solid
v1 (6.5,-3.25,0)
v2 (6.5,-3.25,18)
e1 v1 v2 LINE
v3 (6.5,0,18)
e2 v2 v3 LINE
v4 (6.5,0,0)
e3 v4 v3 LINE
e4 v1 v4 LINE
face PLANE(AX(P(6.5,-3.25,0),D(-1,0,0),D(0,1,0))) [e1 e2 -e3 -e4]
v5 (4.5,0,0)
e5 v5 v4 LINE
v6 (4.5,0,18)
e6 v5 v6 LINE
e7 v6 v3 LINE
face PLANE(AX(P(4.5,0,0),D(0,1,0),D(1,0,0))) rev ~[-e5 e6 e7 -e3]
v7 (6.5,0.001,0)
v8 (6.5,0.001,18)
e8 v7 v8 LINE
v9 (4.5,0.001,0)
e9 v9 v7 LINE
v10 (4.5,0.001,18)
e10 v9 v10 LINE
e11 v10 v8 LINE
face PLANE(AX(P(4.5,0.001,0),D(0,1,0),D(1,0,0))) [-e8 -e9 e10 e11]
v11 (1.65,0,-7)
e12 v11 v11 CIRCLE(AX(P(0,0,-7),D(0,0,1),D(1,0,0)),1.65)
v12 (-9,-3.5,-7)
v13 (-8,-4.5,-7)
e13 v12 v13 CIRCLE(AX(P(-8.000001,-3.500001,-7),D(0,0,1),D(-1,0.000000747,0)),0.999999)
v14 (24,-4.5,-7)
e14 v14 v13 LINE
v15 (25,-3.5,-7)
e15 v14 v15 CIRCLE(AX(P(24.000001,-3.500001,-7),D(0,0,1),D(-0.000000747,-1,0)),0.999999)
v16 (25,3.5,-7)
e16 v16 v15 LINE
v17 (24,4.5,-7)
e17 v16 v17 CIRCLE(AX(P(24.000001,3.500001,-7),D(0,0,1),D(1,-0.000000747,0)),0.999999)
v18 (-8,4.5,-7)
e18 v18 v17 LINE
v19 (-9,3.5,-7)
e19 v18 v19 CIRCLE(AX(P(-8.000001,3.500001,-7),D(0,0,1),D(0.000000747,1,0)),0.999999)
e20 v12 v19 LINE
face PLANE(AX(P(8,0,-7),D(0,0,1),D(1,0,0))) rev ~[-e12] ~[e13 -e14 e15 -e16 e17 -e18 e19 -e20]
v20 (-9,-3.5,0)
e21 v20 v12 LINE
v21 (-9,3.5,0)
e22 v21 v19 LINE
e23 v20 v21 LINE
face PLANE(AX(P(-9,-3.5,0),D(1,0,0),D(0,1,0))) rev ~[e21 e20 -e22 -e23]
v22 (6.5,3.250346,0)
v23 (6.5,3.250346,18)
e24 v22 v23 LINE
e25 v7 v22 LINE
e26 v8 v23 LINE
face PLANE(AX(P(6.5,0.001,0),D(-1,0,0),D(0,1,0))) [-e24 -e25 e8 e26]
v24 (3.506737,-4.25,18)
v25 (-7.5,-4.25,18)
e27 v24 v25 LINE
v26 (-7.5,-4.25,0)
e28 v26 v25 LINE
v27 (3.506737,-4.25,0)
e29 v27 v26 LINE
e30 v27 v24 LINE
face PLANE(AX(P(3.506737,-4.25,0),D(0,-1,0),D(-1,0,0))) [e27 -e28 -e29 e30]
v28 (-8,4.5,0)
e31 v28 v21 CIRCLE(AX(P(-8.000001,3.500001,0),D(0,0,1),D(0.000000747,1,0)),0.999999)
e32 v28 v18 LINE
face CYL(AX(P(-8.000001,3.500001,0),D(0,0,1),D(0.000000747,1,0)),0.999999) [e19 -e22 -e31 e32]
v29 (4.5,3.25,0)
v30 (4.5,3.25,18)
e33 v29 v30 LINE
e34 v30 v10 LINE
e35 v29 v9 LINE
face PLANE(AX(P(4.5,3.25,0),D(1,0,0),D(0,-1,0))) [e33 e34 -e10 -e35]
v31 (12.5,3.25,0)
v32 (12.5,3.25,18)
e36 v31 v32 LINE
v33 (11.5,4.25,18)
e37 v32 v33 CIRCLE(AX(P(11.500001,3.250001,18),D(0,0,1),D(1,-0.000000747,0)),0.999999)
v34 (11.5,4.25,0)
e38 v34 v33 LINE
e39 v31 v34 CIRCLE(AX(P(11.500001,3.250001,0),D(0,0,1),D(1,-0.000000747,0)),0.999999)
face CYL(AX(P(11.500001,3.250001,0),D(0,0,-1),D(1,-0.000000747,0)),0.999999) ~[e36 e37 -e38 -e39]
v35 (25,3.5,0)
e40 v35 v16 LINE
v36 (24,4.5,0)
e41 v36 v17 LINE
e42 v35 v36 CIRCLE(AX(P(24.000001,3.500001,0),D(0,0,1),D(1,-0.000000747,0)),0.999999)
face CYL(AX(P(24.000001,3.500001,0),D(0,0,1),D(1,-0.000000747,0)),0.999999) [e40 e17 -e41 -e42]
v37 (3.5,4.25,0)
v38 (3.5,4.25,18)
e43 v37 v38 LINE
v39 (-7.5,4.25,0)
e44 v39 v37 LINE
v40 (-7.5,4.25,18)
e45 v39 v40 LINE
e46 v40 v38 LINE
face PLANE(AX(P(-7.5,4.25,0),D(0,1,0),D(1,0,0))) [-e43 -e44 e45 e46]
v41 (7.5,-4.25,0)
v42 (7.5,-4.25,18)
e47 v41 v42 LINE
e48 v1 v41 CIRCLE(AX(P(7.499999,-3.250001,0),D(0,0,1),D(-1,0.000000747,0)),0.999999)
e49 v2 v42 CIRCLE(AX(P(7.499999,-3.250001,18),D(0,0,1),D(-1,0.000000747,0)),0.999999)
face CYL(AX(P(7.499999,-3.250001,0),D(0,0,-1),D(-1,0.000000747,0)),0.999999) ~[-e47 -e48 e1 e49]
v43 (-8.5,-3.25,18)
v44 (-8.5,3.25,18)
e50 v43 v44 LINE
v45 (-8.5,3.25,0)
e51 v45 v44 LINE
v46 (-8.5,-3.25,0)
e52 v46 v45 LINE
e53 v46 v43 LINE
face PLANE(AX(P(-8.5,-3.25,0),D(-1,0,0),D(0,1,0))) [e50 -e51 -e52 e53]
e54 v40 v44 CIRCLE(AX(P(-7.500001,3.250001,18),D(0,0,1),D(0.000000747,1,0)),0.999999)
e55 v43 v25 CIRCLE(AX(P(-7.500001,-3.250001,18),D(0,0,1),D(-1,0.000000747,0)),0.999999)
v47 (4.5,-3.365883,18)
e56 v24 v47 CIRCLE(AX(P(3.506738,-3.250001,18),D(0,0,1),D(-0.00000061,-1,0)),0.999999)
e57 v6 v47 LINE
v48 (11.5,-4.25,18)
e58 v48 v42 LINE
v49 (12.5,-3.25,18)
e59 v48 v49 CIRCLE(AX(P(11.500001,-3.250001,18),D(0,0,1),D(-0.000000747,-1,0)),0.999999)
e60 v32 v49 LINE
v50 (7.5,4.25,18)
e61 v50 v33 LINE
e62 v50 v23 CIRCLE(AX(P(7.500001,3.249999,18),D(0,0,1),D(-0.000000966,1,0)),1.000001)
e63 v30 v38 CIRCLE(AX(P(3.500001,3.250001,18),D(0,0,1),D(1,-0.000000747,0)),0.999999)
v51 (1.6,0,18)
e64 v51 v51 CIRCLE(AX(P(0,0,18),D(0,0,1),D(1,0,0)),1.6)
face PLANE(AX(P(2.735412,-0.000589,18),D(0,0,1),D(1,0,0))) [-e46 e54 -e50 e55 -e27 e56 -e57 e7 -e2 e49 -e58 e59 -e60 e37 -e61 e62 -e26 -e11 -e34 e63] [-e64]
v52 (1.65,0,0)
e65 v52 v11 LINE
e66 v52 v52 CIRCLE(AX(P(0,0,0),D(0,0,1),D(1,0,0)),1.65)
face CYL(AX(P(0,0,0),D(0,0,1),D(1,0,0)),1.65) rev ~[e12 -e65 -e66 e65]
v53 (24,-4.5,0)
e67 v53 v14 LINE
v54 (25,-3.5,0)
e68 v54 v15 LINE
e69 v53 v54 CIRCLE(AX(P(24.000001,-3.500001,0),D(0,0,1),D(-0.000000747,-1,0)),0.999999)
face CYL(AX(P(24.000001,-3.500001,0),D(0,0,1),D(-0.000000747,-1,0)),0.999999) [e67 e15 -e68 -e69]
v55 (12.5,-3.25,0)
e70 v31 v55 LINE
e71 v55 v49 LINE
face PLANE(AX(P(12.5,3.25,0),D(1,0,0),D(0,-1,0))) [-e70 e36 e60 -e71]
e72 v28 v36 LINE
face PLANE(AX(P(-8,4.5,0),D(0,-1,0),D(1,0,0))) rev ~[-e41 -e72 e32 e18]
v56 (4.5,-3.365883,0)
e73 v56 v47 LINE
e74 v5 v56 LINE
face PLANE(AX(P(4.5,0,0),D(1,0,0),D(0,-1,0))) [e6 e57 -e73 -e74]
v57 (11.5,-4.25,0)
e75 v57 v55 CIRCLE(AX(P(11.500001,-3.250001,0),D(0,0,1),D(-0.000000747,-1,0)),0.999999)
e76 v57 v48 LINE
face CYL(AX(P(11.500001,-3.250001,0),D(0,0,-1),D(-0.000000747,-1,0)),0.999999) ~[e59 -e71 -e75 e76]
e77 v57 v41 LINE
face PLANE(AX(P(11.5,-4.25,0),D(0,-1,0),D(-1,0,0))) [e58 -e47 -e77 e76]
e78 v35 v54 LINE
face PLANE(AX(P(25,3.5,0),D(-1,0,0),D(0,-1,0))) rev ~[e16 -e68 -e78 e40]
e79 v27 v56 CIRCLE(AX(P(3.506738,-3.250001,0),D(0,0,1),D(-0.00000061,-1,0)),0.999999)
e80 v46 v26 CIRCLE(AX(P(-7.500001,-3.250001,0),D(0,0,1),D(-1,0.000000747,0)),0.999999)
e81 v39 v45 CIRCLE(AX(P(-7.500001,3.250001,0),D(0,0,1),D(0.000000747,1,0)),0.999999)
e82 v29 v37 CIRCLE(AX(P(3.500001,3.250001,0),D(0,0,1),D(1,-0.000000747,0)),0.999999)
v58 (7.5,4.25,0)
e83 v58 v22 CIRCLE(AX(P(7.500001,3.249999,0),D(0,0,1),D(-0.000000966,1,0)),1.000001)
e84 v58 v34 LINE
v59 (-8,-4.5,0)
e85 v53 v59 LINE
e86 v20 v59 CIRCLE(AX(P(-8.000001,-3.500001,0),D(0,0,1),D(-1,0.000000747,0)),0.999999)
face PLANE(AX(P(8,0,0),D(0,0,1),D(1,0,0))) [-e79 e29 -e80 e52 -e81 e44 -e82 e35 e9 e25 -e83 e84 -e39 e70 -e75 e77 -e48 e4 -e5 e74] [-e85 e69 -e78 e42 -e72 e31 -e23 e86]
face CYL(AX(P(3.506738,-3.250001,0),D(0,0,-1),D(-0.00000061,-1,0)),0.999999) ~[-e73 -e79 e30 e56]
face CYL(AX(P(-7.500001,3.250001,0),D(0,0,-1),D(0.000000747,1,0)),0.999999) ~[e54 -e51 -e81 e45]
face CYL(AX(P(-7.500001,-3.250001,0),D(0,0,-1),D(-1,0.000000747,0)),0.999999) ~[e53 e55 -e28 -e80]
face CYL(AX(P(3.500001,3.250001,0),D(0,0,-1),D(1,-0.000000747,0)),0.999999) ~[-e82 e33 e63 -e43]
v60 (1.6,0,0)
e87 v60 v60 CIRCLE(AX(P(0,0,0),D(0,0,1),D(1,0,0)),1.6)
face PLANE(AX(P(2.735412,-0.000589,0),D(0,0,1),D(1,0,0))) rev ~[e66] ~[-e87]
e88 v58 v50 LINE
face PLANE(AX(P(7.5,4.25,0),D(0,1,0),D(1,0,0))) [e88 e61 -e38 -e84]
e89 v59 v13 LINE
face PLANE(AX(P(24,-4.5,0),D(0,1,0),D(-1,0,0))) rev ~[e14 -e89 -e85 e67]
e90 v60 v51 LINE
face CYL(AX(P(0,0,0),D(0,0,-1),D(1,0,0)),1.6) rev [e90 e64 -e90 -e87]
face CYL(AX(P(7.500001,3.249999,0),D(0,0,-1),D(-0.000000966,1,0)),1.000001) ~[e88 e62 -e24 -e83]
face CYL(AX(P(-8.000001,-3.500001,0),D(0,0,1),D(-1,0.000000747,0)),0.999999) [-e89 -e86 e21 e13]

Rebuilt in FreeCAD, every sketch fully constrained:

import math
import FreeCAD as App
import Part
import Sketcher
Q = App.Units.Quantity

doc = App.newDocument("Part")
body = doc.addObject("PartDesign::Body", "Body")

# Sketch on XY plane
sketch1 = body.newObject("Sketcher::SketchObject", "Sketch")
sketch1.AttachmentSupport = (doc.getObject("XY_Plane"), [""])
sketch1.MapMode = "FlatFace"
sketch1.addGeometry(Part.ArcOfCircle(Part.Circle(App.Vector(-7.5, 3.3, 0), App.Vector(0, 0, 1), 1), math.radians(90), math.radians(180)), False)
sketch1.addGeometry(Part.LineSegment(App.Vector(-8.5, 3.2, 0), App.Vector(-8.5, -3.2, 0)), False)
sketch1.addGeometry(Part.ArcOfCircle(Part.Circle(App.Vector(-7.5, -3.3, 0), App.Vector(0, 0, 1), 1), math.radians(180), math.radians(270)), False)
sketch1.addGeometry(Part.LineSegment(App.Vector(-7.5, -4.2, 0), App.Vector(3.5, -4.2, 0)), False)
sketch1.addGeometry(Part.ArcOfCircle(Part.Circle(App.Vector(3.5, -3.3, 0), App.Vector(0, 0, 1), 1), math.radians(-90), math.radians(-7)), False)
sketch1.addGeometry(Part.LineSegment(App.Vector(4.5, -3.4, 0), App.Vector(4.5, 0, 0)), False)
sketch1.addGeometry(Part.LineSegment(App.Vector(4.5, 0, 0), App.Vector(6.5, 0, 0)), False)
sketch1.addGeometry(Part.LineSegment(App.Vector(6.5, 0, 0), App.Vector(6.5, -3.2, 0)), False)
sketch1.addGeometry(Part.ArcOfCircle(Part.Circle(App.Vector(7.5, -3.3, 0), App.Vector(0, 0, 1), 1), math.radians(180), math.radians(270)), False)
sketch1.addGeometry(Part.LineSegment(App.Vector(7.5, -4.2, 0), App.Vector(11.5, -4.2, 0)), False)
sketch1.addGeometry(Part.ArcOfCircle(Part.Circle(App.Vector(11.5, -3.3, 0), App.Vector(0, 0, 1), 1), math.radians(-90), math.radians(0)), False)
sketch1.addGeometry(Part.LineSegment(App.Vector(12.5, -3.2, 0), App.Vector(12.5, 3.2, 0)), False)
sketch1.addGeometry(Part.ArcOfCircle(Part.Circle(App.Vector(11.5, 3.3, 0), App.Vector(0, 0, 1), 1), math.radians(0), math.radians(90)), False)
sketch1.addGeometry(Part.LineSegment(App.Vector(11.5, 4.2, 0), App.Vector(7.5, 4.2, 0)), False)
sketch1.addGeometry(Part.ArcOfCircle(Part.Circle(App.Vector(7.5, 3.2, 0), App.Vector(0, 0, 1), 1), math.radians(90), math.radians(180)), False)
sketch1.addGeometry(Part.LineSegment(App.Vector(6.5, 3.3, 0), App.Vector(6.5, 0, 0)), False)
sketch1.addGeometry(Part.LineSegment(App.Vector(6.5, 0, 0), App.Vector(4.5, 0, 0)), False)
sketch1.addGeometry(Part.LineSegment(App.Vector(4.5, 0, 0), App.Vector(4.5, 3.2, 0)), False)
sketch1.addGeometry(Part.ArcOfCircle(Part.Circle(App.Vector(3.5, 3.3, 0), App.Vector(0, 0, 1), 1), math.radians(0), math.radians(90)), False)
sketch1.addGeometry(Part.LineSegment(App.Vector(3.5, 4.2, 0), App.Vector(-7.5, 4.2, 0)), False)
sketch1.addGeometry(Part.Circle(App.Vector(0, 0, 0), App.Vector(0, 0, 1), 1.6), False)
sketch1.addConstraint(Sketcher.Constraint("Tangent", 0, 2, 1, 1))
sketch1.addConstraint(Sketcher.Constraint("Tangent", 1, 2, 2, 1))
sketch1.addConstraint(Sketcher.Constraint("Tangent", 2, 2, 3, 1))
sketch1.addConstraint(Sketcher.Constraint("Tangent", 3, 2, 4, 1))
sketch1.addConstraint(Sketcher.Constraint("Coincident", 4, 2, 5, 1))
sketch1.addConstraint(Sketcher.Constraint("Coincident", 5, 2, 6, 1))
sketch1.addConstraint(Sketcher.Constraint("Coincident", 6, 2, 7, 1))
sketch1.addConstraint(Sketcher.Constraint("Tangent", 7, 2, 8, 1))
sketch1.addConstraint(Sketcher.Constraint("Tangent", 8, 2, 9, 1))
sketch1.addConstraint(Sketcher.Constraint("Tangent", 9, 2, 10, 1))
sketch1.addConstraint(Sketcher.Constraint("Tangent", 10, 2, 11, 1))
sketch1.addConstraint(Sketcher.Constraint("Tangent", 11, 2, 12, 1))
sketch1.addConstraint(Sketcher.Constraint("Tangent", 12, 2, 13, 1))
sketch1.addConstraint(Sketcher.Constraint("Tangent", 13, 2, 14, 1))
sketch1.addConstraint(Sketcher.Constraint("Coincident", 14, 2, 15, 1))
sketch1.addConstraint(Sketcher.Constraint("Coincident", 15, 2, 16, 1))
sketch1.addConstraint(Sketcher.Constraint("Coincident", 16, 2, 17, 1))
sketch1.addConstraint(Sketcher.Constraint("Tangent", 17, 2, 18, 1))
sketch1.addConstraint(Sketcher.Constraint("Tangent", 18, 2, 19, 1))
sketch1.addConstraint(Sketcher.Constraint("Tangent", 19, 2, 0, 1))
sketch1.addConstraint(Sketcher.Constraint("Vertical", 1))
sketch1.addConstraint(Sketcher.Constraint("Horizontal", 3))
sketch1.addConstraint(Sketcher.Constraint("Vertical", 5))
sketch1.addConstraint(Sketcher.Constraint("Horizontal", 6))
sketch1.addConstraint(Sketcher.Constraint("Vertical", 7))
sketch1.addConstraint(Sketcher.Constraint("Horizontal", 9))
sketch1.addConstraint(Sketcher.Constraint("Vertical", 11))
sketch1.addConstraint(Sketcher.Constraint("Horizontal", 13))
sketch1.addConstraint(Sketcher.Constraint("Vertical", 15))
sketch1.addConstraint(Sketcher.Constraint("Horizontal", 16))
sketch1.addConstraint(Sketcher.Constraint("Vertical", 17))
sketch1.addConstraint(Sketcher.Constraint("Horizontal", 19))
sketch1.addConstraint(Sketcher.Constraint("Coincident", 20, 3, -1, 1))
sketch1.addConstraint(Sketcher.Constraint("Equal", 0, 2))
sketch1.addConstraint(Sketcher.Constraint("Equal", 2, 4))
sketch1.addConstraint(Sketcher.Constraint("Equal", 4, 8))
sketch1.addConstraint(Sketcher.Constraint("Equal", 8, 10))
sketch1.addConstraint(Sketcher.Constraint("Equal", 10, 12))
sketch1.addConstraint(Sketcher.Constraint("Equal", 12, 14))
sketch1.addConstraint(Sketcher.Constraint("Equal", 14, 18))
sketch1.addConstraint(Sketcher.Constraint("Symmetric", 0, 3, 8, 3, -1, 1))
sketch1.addConstraint(Sketcher.Constraint("Symmetric", 2, 3, 14, 3, -1, 1))
sketch1.addConstraint(Sketcher.Constraint("PointOnObject", 5, 2, -1))
sketch1.addConstraint(Sketcher.Constraint("Horizontal", 4, 3, 8, 3))
sketch1.addConstraint(Sketcher.Constraint("Vertical", 5, 2, 16, 2))
sketch1.addConstraint(Sketcher.Constraint("Radius", 0, Q("0.999999 mm")))
sketch1.addConstraint(Sketcher.Constraint("Diameter", 20, Q("3.2 mm")))
sketch1.addConstraint(Sketcher.Constraint("DistanceX", 6, 1, 6, 2, Q("2 mm")))
sketch1.addConstraint(Sketcher.Constraint("DistanceX", 9, 1, 9, 2, Q("4 mm")))
sketch1.addConstraint(Sketcher.Constraint("DistanceX", 19, 2, 19, 1, Q("11 mm")))
sketch1.addConstraint(Sketcher.Constraint("DistanceY", 1, 2, 1, 1, Q("6.5 mm")))
sketch1.addConstraint(Sketcher.Constraint("DistanceY", 17, 1, 17, 2, Q("3.249 mm")))
sketch1.addConstraint(Sketcher.Constraint("DistanceX", 3, 1, 3, 2, Q("11.006737 mm")))
sketch1.addConstraint(Sketcher.Constraint("DistanceY", 15, 2, 15, 1, Q("3.249346 mm")))
pad1 = body.newObject("PartDesign::Pad", "Pad")
pad1.Profile = sketch1
pad1.Length = 18

# Sketch on XY plane
sketch2 = body.newObject("Sketcher::SketchObject", "Sketch001")
sketch2.AttachmentSupport = (doc.getObject("XY_Plane"), [""])
sketch2.MapMode = "FlatFace"
sketch2.addGeometry(Part.ArcOfCircle(Part.Circle(App.Vector(-8, 3.5, 0), App.Vector(0, 0, 1), 1), math.radians(90), math.radians(180)), False)
sketch2.addGeometry(Part.LineSegment(App.Vector(-9, 3.5, 0), App.Vector(-9, -3.5, 0)), False)
sketch2.addGeometry(Part.ArcOfCircle(Part.Circle(App.Vector(-8, -3.5, 0), App.Vector(0, 0, 1), 1), math.radians(180), math.radians(270)), False)
sketch2.addGeometry(Part.LineSegment(App.Vector(-8, -4.5, 0), App.Vector(24, -4.5, 0)), False)
sketch2.addGeometry(Part.ArcOfCircle(Part.Circle(App.Vector(24, -3.5, 0), App.Vector(0, 0, 1), 1), math.radians(-90), math.radians(0)), False)
sketch2.addGeometry(Part.LineSegment(App.Vector(25, -3.5, 0), App.Vector(25, 3.5, 0)), False)
sketch2.addGeometry(Part.ArcOfCircle(Part.Circle(App.Vector(24, 3.5, 0), App.Vector(0, 0, 1), 1), math.radians(0), math.radians(90)), False)
sketch2.addGeometry(Part.LineSegment(App.Vector(24, 4.5, 0), App.Vector(-8, 4.5, 0)), False)
sketch2.addGeometry(Part.Circle(App.Vector(0, 0, 0), App.Vector(0, 0, 1), 1.6), False)
sketch2.addConstraint(Sketcher.Constraint("Tangent", 0, 2, 1, 1))
sketch2.addConstraint(Sketcher.Constraint("Tangent", 1, 2, 2, 1))
sketch2.addConstraint(Sketcher.Constraint("Tangent", 2, 2, 3, 1))
sketch2.addConstraint(Sketcher.Constraint("Tangent", 3, 2, 4, 1))
sketch2.addConstraint(Sketcher.Constraint("Tangent", 4, 2, 5, 1))
sketch2.addConstraint(Sketcher.Constraint("Tangent", 5, 2, 6, 1))
sketch2.addConstraint(Sketcher.Constraint("Tangent", 6, 2, 7, 1))
sketch2.addConstraint(Sketcher.Constraint("Tangent", 7, 2, 0, 1))
sketch2.addConstraint(Sketcher.Constraint("Vertical", 1))
sketch2.addConstraint(Sketcher.Constraint("Horizontal", 3))
sketch2.addConstraint(Sketcher.Constraint("Vertical", 5))
sketch2.addConstraint(Sketcher.Constraint("Horizontal", 7))
sketch2.addConstraint(Sketcher.Constraint("Coincident", 8, 3, -1, 1))
sketch2.addConstraint(Sketcher.Constraint("Equal", 0, 2))
sketch2.addConstraint(Sketcher.Constraint("Equal", 2, 4))
sketch2.addConstraint(Sketcher.Constraint("Equal", 4, 6))
sketch2.addConstraint(Sketcher.Constraint("Radius", 0, Q("0.999999 mm")))
sketch2.addConstraint(Sketcher.Constraint("Diameter", 8, Q("3.3 mm")))
sketch2.addConstraint(Sketcher.Constraint("DistanceX", 3, 1, 3, 2, Q("32 mm")))
sketch2.addConstraint(Sketcher.Constraint("DistanceY", 1, 2, 1, 1, Q("7 mm")))
sketch2.addConstraint(Sketcher.Constraint("DistanceX", 0, 3, -1, 1, Q("8.000001 mm")))
sketch2.addConstraint(Sketcher.Constraint("DistanceY", -1, 1, 0, 3, Q("3.500001 mm")))
pad2 = body.newObject("PartDesign::Pad", "Pad001")
pad2.Profile = sketch2
pad2.Length = 7
pad2.Reversed = True

doc.recompute()
